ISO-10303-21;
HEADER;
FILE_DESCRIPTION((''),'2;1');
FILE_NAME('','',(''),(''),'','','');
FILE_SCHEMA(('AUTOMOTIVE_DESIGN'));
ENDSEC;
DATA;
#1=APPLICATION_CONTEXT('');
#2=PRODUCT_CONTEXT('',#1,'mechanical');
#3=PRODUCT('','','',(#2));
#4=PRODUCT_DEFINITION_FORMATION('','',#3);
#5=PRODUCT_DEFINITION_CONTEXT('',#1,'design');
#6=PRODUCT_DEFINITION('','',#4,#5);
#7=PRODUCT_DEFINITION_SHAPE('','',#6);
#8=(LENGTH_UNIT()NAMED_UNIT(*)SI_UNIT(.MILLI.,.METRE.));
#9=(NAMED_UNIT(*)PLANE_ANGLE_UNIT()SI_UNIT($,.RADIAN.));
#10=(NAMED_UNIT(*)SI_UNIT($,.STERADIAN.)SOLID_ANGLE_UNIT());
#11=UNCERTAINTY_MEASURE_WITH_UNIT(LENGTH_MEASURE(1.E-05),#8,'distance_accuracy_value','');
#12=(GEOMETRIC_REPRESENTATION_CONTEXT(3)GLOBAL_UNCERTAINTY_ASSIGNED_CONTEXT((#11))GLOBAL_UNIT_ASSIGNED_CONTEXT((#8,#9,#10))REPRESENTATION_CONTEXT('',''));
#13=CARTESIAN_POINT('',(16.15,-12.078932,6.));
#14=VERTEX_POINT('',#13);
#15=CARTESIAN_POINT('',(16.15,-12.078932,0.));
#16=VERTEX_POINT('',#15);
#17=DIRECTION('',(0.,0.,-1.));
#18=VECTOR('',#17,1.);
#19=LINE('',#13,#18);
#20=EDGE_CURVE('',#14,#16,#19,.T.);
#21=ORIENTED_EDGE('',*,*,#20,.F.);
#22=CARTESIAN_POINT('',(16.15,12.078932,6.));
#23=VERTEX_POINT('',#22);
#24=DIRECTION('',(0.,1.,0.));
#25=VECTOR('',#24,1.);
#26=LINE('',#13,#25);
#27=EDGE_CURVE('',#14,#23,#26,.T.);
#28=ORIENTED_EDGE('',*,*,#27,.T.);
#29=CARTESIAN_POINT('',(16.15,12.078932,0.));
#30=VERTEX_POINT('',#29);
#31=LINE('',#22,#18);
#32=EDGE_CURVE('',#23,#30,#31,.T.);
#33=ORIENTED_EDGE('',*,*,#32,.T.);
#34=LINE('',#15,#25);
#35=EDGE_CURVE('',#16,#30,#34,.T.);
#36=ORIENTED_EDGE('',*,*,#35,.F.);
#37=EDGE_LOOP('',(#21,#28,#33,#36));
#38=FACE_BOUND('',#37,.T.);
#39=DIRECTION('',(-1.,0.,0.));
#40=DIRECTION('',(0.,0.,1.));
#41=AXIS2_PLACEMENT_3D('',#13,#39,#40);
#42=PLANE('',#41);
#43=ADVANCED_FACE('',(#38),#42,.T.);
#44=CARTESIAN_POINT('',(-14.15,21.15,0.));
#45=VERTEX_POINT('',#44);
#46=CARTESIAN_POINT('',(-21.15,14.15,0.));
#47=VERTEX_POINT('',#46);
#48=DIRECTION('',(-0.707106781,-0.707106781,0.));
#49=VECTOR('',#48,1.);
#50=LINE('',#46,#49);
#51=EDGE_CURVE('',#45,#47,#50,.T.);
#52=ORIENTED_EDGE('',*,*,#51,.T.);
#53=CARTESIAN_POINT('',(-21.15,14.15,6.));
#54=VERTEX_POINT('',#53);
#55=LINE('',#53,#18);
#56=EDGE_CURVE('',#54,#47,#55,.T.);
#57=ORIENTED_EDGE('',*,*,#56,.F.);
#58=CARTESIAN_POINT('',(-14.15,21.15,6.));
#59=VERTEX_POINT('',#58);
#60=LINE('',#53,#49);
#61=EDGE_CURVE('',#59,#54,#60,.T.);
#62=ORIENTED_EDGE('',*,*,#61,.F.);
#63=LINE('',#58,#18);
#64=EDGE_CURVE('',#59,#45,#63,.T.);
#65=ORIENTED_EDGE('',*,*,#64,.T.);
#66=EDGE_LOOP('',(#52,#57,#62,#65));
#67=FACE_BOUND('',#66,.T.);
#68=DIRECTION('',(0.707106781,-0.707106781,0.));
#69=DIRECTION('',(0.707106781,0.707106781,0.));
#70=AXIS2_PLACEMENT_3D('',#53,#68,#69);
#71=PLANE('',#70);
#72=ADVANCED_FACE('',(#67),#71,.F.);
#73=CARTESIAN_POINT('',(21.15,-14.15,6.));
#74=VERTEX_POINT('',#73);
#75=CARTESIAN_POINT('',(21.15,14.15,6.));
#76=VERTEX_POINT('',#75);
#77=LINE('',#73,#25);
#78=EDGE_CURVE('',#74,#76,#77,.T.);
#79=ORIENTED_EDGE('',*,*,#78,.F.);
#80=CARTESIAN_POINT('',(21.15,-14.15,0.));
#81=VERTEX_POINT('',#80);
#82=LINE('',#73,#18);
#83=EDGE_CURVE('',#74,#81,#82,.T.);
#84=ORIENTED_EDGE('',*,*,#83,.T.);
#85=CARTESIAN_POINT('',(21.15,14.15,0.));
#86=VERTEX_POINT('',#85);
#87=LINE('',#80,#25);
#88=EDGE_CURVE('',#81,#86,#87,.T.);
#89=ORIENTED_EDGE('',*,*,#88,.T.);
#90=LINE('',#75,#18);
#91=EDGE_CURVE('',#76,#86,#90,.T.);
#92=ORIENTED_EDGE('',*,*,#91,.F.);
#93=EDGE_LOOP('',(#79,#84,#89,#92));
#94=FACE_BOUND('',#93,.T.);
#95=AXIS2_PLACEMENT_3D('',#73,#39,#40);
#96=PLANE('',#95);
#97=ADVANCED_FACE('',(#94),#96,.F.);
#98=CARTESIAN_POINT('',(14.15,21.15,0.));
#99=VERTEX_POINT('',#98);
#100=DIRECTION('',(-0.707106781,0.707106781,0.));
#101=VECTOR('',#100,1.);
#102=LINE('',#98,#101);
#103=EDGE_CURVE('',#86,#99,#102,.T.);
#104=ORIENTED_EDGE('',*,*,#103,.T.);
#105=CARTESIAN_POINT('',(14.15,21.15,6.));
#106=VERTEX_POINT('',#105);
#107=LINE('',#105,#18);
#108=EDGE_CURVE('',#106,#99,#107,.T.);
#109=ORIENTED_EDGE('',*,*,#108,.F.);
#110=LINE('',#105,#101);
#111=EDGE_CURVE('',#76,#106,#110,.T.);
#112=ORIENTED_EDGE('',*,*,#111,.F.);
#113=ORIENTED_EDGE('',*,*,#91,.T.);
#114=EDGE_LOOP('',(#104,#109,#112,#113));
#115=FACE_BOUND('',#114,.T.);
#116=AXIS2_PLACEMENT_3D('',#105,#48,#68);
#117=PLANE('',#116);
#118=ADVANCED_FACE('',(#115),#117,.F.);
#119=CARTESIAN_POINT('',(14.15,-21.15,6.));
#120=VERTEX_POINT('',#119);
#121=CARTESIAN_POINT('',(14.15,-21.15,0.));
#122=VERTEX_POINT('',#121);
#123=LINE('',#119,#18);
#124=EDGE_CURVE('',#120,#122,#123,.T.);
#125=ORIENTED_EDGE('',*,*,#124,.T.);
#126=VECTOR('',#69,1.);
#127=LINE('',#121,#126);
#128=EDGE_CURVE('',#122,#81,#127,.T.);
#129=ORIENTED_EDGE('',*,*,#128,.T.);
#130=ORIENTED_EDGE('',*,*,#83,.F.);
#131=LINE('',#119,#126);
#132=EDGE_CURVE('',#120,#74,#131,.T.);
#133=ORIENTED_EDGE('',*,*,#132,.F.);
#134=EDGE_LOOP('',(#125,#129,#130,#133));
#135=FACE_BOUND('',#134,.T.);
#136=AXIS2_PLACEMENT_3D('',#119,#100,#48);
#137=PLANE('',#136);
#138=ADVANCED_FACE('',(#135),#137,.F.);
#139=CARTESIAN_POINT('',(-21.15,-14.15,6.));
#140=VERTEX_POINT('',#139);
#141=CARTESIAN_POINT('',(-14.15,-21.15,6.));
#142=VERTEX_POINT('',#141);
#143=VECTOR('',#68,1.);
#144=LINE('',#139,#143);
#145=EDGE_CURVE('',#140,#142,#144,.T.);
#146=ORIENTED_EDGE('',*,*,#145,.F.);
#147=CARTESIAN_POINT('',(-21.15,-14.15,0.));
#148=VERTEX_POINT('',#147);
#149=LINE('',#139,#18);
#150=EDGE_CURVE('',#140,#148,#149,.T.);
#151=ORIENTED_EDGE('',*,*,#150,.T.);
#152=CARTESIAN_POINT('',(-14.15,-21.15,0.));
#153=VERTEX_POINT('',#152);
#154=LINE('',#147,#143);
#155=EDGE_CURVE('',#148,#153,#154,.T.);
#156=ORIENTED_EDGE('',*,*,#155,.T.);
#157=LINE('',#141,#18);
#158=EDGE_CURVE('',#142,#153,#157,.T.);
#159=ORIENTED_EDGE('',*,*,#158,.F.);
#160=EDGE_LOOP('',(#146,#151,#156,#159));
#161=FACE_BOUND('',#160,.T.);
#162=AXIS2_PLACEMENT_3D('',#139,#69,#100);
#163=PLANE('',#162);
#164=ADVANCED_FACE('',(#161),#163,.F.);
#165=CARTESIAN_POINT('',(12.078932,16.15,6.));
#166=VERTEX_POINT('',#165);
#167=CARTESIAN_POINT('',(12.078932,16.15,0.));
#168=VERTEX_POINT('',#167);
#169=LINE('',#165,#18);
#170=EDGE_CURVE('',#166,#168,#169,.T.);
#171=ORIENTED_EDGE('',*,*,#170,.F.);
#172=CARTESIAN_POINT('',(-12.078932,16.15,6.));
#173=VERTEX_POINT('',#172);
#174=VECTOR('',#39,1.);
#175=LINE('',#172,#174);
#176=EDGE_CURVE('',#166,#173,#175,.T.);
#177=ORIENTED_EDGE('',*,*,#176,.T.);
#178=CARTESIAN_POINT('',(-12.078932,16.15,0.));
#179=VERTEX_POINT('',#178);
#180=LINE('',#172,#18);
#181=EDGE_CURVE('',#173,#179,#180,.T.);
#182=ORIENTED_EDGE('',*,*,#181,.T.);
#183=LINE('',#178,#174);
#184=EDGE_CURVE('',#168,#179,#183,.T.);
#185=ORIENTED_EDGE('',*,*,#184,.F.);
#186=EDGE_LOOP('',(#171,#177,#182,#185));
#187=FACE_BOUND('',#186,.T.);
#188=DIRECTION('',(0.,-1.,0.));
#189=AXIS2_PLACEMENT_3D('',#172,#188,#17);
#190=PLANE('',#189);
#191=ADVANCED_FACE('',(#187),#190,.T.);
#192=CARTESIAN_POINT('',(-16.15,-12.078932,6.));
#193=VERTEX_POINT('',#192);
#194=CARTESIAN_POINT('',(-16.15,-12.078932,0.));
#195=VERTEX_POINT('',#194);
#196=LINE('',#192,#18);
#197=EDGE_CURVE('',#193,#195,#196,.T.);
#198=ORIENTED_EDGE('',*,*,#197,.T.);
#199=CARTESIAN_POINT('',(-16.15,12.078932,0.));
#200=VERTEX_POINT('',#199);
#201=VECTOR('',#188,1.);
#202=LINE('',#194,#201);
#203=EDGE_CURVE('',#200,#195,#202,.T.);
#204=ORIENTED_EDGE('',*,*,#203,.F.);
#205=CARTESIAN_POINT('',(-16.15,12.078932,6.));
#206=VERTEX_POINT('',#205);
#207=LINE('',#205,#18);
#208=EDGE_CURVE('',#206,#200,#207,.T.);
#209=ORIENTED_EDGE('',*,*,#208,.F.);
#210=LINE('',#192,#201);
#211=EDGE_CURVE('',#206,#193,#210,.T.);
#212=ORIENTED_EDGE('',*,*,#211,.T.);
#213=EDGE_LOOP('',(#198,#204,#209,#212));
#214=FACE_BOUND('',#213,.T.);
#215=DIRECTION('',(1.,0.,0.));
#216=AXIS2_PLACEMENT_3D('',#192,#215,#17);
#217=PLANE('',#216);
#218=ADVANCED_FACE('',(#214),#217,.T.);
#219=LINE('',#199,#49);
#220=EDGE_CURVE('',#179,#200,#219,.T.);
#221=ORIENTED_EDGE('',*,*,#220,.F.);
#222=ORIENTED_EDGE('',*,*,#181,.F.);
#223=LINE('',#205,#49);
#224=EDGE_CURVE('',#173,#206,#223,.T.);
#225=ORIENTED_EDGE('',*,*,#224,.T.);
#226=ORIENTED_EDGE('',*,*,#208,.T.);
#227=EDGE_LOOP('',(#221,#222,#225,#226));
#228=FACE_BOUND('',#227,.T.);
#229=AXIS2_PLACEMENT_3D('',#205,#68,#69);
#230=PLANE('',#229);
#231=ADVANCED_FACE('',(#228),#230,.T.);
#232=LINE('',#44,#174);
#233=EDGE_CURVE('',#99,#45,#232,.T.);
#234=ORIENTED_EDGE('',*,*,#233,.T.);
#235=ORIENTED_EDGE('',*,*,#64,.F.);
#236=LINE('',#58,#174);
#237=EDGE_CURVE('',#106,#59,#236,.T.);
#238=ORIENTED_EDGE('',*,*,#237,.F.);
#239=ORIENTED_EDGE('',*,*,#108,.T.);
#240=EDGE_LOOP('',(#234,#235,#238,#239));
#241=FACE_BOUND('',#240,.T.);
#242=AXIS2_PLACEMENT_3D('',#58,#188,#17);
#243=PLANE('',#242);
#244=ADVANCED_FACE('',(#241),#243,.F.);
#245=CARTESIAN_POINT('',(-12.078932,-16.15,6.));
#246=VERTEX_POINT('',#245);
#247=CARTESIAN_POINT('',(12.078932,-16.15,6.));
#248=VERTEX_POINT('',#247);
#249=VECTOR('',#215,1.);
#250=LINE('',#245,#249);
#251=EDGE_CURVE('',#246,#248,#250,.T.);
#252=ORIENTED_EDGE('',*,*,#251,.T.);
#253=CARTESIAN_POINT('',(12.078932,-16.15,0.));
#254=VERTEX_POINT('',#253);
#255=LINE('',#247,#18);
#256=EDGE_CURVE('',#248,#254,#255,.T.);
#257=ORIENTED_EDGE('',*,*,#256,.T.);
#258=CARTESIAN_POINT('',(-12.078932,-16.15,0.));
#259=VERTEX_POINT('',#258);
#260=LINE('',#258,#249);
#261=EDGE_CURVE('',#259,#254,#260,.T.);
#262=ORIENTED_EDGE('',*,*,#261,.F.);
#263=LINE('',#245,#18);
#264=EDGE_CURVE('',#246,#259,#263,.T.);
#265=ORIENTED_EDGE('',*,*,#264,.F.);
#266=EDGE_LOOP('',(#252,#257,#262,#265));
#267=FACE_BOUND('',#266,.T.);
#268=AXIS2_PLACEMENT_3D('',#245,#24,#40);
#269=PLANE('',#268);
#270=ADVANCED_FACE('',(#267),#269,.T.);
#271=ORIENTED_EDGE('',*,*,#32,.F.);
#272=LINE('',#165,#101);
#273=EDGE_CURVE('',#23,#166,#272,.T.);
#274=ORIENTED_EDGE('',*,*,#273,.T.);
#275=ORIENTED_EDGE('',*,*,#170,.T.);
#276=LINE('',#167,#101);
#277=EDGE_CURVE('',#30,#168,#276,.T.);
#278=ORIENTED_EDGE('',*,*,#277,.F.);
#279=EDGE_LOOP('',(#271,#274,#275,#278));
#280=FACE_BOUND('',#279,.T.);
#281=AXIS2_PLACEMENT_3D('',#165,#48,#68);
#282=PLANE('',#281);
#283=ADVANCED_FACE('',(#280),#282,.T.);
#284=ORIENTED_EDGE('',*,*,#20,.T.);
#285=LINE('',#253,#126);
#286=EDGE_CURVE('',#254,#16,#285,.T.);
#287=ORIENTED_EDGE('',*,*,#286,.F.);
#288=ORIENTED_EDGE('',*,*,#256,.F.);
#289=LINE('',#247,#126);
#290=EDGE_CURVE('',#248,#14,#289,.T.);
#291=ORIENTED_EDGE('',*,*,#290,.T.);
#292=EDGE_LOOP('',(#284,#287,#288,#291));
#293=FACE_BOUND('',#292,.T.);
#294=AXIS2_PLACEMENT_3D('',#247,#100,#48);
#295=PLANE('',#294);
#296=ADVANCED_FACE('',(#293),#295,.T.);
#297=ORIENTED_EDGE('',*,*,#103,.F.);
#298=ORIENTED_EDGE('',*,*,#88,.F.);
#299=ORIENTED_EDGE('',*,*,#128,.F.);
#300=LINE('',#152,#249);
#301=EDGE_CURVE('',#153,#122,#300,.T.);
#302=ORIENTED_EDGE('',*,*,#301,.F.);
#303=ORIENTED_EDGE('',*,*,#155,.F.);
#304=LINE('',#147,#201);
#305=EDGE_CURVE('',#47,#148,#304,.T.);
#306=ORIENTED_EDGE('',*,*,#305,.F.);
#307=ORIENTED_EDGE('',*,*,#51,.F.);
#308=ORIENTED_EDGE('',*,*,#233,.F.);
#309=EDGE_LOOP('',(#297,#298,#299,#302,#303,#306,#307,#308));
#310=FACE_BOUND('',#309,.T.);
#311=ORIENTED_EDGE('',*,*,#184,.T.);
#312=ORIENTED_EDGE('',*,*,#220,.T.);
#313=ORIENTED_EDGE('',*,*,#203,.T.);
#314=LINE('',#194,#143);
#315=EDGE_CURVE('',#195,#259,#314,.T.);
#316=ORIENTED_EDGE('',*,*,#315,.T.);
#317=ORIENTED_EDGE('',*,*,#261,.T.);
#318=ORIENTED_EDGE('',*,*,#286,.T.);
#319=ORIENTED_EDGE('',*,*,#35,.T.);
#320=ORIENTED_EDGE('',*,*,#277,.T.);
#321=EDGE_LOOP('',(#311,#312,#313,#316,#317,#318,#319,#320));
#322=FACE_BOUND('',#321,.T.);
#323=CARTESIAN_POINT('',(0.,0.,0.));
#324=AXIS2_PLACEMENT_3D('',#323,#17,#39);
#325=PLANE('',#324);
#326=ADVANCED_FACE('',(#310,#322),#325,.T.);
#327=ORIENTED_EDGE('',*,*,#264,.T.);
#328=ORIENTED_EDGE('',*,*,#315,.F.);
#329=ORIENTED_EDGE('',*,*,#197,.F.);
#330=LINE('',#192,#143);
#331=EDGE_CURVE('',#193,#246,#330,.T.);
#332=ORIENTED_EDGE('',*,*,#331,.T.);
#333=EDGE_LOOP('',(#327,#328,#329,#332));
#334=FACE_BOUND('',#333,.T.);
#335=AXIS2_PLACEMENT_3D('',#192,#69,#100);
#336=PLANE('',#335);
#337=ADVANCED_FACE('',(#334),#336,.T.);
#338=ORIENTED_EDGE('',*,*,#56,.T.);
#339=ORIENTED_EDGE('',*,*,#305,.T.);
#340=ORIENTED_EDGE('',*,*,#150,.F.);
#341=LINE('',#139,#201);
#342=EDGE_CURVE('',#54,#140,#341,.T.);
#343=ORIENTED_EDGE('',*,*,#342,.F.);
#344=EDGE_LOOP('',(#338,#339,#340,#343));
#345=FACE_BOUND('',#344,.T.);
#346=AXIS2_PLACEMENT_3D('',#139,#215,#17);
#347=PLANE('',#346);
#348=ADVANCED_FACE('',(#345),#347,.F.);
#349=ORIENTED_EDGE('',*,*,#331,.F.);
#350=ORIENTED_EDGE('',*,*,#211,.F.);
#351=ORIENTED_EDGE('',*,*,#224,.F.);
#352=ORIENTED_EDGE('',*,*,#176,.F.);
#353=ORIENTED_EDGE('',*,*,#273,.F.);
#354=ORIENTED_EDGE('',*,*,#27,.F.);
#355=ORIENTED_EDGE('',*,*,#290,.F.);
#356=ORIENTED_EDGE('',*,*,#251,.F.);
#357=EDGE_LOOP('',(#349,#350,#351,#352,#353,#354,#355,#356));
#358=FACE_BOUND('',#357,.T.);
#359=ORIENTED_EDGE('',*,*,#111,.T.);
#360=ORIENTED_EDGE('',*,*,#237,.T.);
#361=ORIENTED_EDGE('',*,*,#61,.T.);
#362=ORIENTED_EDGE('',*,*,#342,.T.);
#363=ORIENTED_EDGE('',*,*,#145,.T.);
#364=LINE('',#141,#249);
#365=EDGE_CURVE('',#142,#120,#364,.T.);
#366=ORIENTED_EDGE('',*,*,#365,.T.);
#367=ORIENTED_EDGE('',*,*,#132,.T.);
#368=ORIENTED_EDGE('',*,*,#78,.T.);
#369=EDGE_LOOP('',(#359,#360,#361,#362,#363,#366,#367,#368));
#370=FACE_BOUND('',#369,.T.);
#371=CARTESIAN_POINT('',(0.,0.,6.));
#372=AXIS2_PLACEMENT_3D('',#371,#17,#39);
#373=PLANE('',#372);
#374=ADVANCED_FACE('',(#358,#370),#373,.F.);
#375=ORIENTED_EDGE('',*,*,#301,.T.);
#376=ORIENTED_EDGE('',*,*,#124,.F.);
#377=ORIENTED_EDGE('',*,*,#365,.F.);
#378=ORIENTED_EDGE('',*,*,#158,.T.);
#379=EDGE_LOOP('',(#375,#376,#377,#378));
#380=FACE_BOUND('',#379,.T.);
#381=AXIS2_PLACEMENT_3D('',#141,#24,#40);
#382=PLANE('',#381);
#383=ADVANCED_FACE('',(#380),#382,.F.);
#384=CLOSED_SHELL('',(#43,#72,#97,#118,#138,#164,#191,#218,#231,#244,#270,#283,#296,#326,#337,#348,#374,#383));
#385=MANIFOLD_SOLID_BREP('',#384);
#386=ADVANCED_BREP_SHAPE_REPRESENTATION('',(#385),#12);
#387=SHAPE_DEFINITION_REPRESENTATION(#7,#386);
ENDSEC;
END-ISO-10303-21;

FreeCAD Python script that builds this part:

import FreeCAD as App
import Part
import Sketcher
Q = App.Units.Quantity

doc = App.newDocument("Part")
body = doc.addObject("PartDesign::Body", "Body")

# Sketch on XY plane
sketch1 = body.newObject("Sketcher::SketchObject", "Sketch")
sketch1.AttachmentSupport = (doc.getObject("XY_Plane"), [""])
sketch1.MapMode = "FlatFace"
sketch1.addGeometry(Part.LineSegment(App.Vector(-14, 21, 0), App.Vector(-21, 14, 0)), False)
sketch1.addGeometry(Part.LineSegment(App.Vector(-21, 14, 0), App.Vector(-21, -14, 0)), False)
sketch1.addGeometry(Part.LineSegment(App.Vector(-21, -14, 0), App.Vector(-14, -21, 0)), False)
sketch1.addGeometry(Part.LineSegment(App.Vector(-14, -21, 0), App.Vector(14, -21, 0)), False)
sketch1.addGeometry(Part.LineSegment(App.Vector(14, -21, 0), App.Vector(21, -14, 0)), False)
sketch1.addGeometry(Part.LineSegment(App.Vector(21, -14, 0), App.Vector(21, 14, 0)), False)
sketch1.addGeometry(Part.LineSegment(App.Vector(21, 14, 0), App.Vector(14, 21, 0)), False)
sketch1.addGeometry(Part.LineSegment(App.Vector(14, 21, 0), App.Vector(-14, 21, 0)), False)
sketch1.addGeometry(Part.LineSegment(App.Vector(-12, 16, 0), App.Vector(12, 16, 0)), False)
sketch1.addGeometry(Part.LineSegment(App.Vector(12, 16, 0), App.Vector(16, 12, 0)), False)
sketch1.addGeometry(Part.LineSegment(App.Vector(16, 12, 0), App.Vector(16, -12, 0)), False)
sketch1.addGeometry(Part.LineSegment(App.Vector(16, -12, 0), App.Vector(12, -16, 0)), False)
sketch1.addGeometry(Part.LineSegment(App.Vector(12, -16, 0), App.Vector(-12, -16, 0)), False)
sketch1.addGeometry(Part.LineSegment(App.Vector(-12, -16, 0), App.Vector(-16, -12, 0)), False)
sketch1.addGeometry(Part.LineSegment(App.Vector(-16, -12, 0), App.Vector(-16, 12, 0)), False)
sketch1.addGeometry(Part.LineSegment(App.Vector(-16, 12, 0), App.Vector(-12, 16, 0)), False)
sketch1.addConstraint(Sketcher.Constraint("Coincident", 0, 2, 1, 1))
sketch1.addConstraint(Sketcher.Constraint("Coincident", 1, 2, 2, 1))
sketch1.addConstraint(Sketcher.Constraint("Coincident", 2, 2, 3, 1))
sketch1.addConstraint(Sketcher.Constraint("Coincident", 3, 2, 4, 1))
sketch1.addConstraint(Sketcher.Constraint("Coincident", 4, 2, 5, 1))
sketch1.addConstraint(Sketcher.Constraint("Coincident", 5, 2, 6, 1))
sketch1.addConstraint(Sketcher.Constraint("Coincident", 6, 2, 7, 1))
sketch1.addConstraint(Sketcher.Constraint("Coincident", 7, 2, 0, 1))
sketch1.addConstraint(Sketcher.Constraint("Coincident", 8, 2, 9, 1))
sketch1.addConstraint(Sketcher.Constraint("Coincident", 9, 2, 10, 1))
sketch1.addConstraint(Sketcher.Constraint("Coincident", 10, 2, 11, 1))
sketch1.addConstraint(Sketcher.Constraint("Coincident", 11, 2, 12, 1))
sketch1.addConstraint(Sketcher.Constraint("Coincident", 12, 2, 13, 1))
sketch1.addConstraint(Sketcher.Constraint("Coincident", 13, 2, 14, 1))
sketch1.addConstraint(Sketcher.Constraint("Coincident", 14, 2, 15, 1))
sketch1.addConstraint(Sketcher.Constraint("Coincident", 15, 2, 8, 1))
sketch1.addConstraint(Sketcher.Constraint("Vertical", 1))
sketch1.addConstraint(Sketcher.Constraint("Horizontal", 3))
sketch1.addConstraint(Sketcher.Constraint("Vertical", 5))
sketch1.addConstraint(Sketcher.Constraint("Horizontal", 7))
sketch1.addConstraint(Sketcher.Constraint("Horizontal", 8))
sketch1.addConstraint(Sketcher.Constraint("Vertical", 10))
sketch1.addConstraint(Sketcher.Constraint("Horizontal", 12))
sketch1.addConstraint(Sketcher.Constraint("Vertical", 14))
sketch1.addConstraint(Sketcher.Constraint("Symmetric", 0, 2, 4, 2, -1, 1))
sketch1.addConstraint(Sketcher.Constraint("Symmetric", 2, 2, 6, 2, -1, 1))
sketch1.addConstraint(Sketcher.Constraint("Symmetric", 8, 2, 12, 2, -1, 1))
sketch1.addConstraint(Sketcher.Constraint("Symmetric", 9, 2, 13, 2, -1, 1))
sketch1.addConstraint(Sketcher.Constraint("Perpendicular", 0, 2))
sketch1.addConstraint(Sketcher.Constraint("Perpendicular", 2, 4))
sketch1.addConstraint(Sketcher.Constraint("Perpendicular", 4, 6))
sketch1.addConstraint(Sketcher.Constraint("Parallel", 6, 9))
sketch1.addConstraint(Sketcher.Constraint("Perpendicular", 9, 11))
sketch1.addConstraint(Sketcher.Constraint("Perpendicular", 13, 15))
sketch1.addConstraint(Sketcher.Constraint("Horizontal", 1, 2, 4, 2))
sketch1.addConstraint(Sketcher.Constraint("Horizontal", 10, 2, 13, 2))
sketch1.addConstraint(Sketcher.Constraint("Horizontal", 9, 2, 14, 2))
sketch1.addConstraint(Sketcher.Constraint("Vertical", 3, 2, 6, 2))
sketch1.addConstraint(Sketcher.Constraint("Equal", 7, 1))
sketch1.addConstraint(Sketcher.Constraint("Equal", 12, 10))
sketch1.addConstraint(Sketcher.Constraint("DistanceX", 3, 1, 3, 2, Q("28.3 mm")))
sketch1.addConstraint(Sketcher.Constraint("DistanceX", 1, 2, 2, 2, Q("7 mm")))
sketch1.addConstraint(Sketcher.Constraint("DistanceY", 8, 2, 6, 2, Q("5 mm")))
sketch1.addConstraint(Sketcher.Constraint("Distance", 9, Q("5.757359 mm")))
pad1 = body.newObject("PartDesign::Pad", "Pad")
pad1.Profile = sketch1
pad1.Length = 6

doc.recompute()
